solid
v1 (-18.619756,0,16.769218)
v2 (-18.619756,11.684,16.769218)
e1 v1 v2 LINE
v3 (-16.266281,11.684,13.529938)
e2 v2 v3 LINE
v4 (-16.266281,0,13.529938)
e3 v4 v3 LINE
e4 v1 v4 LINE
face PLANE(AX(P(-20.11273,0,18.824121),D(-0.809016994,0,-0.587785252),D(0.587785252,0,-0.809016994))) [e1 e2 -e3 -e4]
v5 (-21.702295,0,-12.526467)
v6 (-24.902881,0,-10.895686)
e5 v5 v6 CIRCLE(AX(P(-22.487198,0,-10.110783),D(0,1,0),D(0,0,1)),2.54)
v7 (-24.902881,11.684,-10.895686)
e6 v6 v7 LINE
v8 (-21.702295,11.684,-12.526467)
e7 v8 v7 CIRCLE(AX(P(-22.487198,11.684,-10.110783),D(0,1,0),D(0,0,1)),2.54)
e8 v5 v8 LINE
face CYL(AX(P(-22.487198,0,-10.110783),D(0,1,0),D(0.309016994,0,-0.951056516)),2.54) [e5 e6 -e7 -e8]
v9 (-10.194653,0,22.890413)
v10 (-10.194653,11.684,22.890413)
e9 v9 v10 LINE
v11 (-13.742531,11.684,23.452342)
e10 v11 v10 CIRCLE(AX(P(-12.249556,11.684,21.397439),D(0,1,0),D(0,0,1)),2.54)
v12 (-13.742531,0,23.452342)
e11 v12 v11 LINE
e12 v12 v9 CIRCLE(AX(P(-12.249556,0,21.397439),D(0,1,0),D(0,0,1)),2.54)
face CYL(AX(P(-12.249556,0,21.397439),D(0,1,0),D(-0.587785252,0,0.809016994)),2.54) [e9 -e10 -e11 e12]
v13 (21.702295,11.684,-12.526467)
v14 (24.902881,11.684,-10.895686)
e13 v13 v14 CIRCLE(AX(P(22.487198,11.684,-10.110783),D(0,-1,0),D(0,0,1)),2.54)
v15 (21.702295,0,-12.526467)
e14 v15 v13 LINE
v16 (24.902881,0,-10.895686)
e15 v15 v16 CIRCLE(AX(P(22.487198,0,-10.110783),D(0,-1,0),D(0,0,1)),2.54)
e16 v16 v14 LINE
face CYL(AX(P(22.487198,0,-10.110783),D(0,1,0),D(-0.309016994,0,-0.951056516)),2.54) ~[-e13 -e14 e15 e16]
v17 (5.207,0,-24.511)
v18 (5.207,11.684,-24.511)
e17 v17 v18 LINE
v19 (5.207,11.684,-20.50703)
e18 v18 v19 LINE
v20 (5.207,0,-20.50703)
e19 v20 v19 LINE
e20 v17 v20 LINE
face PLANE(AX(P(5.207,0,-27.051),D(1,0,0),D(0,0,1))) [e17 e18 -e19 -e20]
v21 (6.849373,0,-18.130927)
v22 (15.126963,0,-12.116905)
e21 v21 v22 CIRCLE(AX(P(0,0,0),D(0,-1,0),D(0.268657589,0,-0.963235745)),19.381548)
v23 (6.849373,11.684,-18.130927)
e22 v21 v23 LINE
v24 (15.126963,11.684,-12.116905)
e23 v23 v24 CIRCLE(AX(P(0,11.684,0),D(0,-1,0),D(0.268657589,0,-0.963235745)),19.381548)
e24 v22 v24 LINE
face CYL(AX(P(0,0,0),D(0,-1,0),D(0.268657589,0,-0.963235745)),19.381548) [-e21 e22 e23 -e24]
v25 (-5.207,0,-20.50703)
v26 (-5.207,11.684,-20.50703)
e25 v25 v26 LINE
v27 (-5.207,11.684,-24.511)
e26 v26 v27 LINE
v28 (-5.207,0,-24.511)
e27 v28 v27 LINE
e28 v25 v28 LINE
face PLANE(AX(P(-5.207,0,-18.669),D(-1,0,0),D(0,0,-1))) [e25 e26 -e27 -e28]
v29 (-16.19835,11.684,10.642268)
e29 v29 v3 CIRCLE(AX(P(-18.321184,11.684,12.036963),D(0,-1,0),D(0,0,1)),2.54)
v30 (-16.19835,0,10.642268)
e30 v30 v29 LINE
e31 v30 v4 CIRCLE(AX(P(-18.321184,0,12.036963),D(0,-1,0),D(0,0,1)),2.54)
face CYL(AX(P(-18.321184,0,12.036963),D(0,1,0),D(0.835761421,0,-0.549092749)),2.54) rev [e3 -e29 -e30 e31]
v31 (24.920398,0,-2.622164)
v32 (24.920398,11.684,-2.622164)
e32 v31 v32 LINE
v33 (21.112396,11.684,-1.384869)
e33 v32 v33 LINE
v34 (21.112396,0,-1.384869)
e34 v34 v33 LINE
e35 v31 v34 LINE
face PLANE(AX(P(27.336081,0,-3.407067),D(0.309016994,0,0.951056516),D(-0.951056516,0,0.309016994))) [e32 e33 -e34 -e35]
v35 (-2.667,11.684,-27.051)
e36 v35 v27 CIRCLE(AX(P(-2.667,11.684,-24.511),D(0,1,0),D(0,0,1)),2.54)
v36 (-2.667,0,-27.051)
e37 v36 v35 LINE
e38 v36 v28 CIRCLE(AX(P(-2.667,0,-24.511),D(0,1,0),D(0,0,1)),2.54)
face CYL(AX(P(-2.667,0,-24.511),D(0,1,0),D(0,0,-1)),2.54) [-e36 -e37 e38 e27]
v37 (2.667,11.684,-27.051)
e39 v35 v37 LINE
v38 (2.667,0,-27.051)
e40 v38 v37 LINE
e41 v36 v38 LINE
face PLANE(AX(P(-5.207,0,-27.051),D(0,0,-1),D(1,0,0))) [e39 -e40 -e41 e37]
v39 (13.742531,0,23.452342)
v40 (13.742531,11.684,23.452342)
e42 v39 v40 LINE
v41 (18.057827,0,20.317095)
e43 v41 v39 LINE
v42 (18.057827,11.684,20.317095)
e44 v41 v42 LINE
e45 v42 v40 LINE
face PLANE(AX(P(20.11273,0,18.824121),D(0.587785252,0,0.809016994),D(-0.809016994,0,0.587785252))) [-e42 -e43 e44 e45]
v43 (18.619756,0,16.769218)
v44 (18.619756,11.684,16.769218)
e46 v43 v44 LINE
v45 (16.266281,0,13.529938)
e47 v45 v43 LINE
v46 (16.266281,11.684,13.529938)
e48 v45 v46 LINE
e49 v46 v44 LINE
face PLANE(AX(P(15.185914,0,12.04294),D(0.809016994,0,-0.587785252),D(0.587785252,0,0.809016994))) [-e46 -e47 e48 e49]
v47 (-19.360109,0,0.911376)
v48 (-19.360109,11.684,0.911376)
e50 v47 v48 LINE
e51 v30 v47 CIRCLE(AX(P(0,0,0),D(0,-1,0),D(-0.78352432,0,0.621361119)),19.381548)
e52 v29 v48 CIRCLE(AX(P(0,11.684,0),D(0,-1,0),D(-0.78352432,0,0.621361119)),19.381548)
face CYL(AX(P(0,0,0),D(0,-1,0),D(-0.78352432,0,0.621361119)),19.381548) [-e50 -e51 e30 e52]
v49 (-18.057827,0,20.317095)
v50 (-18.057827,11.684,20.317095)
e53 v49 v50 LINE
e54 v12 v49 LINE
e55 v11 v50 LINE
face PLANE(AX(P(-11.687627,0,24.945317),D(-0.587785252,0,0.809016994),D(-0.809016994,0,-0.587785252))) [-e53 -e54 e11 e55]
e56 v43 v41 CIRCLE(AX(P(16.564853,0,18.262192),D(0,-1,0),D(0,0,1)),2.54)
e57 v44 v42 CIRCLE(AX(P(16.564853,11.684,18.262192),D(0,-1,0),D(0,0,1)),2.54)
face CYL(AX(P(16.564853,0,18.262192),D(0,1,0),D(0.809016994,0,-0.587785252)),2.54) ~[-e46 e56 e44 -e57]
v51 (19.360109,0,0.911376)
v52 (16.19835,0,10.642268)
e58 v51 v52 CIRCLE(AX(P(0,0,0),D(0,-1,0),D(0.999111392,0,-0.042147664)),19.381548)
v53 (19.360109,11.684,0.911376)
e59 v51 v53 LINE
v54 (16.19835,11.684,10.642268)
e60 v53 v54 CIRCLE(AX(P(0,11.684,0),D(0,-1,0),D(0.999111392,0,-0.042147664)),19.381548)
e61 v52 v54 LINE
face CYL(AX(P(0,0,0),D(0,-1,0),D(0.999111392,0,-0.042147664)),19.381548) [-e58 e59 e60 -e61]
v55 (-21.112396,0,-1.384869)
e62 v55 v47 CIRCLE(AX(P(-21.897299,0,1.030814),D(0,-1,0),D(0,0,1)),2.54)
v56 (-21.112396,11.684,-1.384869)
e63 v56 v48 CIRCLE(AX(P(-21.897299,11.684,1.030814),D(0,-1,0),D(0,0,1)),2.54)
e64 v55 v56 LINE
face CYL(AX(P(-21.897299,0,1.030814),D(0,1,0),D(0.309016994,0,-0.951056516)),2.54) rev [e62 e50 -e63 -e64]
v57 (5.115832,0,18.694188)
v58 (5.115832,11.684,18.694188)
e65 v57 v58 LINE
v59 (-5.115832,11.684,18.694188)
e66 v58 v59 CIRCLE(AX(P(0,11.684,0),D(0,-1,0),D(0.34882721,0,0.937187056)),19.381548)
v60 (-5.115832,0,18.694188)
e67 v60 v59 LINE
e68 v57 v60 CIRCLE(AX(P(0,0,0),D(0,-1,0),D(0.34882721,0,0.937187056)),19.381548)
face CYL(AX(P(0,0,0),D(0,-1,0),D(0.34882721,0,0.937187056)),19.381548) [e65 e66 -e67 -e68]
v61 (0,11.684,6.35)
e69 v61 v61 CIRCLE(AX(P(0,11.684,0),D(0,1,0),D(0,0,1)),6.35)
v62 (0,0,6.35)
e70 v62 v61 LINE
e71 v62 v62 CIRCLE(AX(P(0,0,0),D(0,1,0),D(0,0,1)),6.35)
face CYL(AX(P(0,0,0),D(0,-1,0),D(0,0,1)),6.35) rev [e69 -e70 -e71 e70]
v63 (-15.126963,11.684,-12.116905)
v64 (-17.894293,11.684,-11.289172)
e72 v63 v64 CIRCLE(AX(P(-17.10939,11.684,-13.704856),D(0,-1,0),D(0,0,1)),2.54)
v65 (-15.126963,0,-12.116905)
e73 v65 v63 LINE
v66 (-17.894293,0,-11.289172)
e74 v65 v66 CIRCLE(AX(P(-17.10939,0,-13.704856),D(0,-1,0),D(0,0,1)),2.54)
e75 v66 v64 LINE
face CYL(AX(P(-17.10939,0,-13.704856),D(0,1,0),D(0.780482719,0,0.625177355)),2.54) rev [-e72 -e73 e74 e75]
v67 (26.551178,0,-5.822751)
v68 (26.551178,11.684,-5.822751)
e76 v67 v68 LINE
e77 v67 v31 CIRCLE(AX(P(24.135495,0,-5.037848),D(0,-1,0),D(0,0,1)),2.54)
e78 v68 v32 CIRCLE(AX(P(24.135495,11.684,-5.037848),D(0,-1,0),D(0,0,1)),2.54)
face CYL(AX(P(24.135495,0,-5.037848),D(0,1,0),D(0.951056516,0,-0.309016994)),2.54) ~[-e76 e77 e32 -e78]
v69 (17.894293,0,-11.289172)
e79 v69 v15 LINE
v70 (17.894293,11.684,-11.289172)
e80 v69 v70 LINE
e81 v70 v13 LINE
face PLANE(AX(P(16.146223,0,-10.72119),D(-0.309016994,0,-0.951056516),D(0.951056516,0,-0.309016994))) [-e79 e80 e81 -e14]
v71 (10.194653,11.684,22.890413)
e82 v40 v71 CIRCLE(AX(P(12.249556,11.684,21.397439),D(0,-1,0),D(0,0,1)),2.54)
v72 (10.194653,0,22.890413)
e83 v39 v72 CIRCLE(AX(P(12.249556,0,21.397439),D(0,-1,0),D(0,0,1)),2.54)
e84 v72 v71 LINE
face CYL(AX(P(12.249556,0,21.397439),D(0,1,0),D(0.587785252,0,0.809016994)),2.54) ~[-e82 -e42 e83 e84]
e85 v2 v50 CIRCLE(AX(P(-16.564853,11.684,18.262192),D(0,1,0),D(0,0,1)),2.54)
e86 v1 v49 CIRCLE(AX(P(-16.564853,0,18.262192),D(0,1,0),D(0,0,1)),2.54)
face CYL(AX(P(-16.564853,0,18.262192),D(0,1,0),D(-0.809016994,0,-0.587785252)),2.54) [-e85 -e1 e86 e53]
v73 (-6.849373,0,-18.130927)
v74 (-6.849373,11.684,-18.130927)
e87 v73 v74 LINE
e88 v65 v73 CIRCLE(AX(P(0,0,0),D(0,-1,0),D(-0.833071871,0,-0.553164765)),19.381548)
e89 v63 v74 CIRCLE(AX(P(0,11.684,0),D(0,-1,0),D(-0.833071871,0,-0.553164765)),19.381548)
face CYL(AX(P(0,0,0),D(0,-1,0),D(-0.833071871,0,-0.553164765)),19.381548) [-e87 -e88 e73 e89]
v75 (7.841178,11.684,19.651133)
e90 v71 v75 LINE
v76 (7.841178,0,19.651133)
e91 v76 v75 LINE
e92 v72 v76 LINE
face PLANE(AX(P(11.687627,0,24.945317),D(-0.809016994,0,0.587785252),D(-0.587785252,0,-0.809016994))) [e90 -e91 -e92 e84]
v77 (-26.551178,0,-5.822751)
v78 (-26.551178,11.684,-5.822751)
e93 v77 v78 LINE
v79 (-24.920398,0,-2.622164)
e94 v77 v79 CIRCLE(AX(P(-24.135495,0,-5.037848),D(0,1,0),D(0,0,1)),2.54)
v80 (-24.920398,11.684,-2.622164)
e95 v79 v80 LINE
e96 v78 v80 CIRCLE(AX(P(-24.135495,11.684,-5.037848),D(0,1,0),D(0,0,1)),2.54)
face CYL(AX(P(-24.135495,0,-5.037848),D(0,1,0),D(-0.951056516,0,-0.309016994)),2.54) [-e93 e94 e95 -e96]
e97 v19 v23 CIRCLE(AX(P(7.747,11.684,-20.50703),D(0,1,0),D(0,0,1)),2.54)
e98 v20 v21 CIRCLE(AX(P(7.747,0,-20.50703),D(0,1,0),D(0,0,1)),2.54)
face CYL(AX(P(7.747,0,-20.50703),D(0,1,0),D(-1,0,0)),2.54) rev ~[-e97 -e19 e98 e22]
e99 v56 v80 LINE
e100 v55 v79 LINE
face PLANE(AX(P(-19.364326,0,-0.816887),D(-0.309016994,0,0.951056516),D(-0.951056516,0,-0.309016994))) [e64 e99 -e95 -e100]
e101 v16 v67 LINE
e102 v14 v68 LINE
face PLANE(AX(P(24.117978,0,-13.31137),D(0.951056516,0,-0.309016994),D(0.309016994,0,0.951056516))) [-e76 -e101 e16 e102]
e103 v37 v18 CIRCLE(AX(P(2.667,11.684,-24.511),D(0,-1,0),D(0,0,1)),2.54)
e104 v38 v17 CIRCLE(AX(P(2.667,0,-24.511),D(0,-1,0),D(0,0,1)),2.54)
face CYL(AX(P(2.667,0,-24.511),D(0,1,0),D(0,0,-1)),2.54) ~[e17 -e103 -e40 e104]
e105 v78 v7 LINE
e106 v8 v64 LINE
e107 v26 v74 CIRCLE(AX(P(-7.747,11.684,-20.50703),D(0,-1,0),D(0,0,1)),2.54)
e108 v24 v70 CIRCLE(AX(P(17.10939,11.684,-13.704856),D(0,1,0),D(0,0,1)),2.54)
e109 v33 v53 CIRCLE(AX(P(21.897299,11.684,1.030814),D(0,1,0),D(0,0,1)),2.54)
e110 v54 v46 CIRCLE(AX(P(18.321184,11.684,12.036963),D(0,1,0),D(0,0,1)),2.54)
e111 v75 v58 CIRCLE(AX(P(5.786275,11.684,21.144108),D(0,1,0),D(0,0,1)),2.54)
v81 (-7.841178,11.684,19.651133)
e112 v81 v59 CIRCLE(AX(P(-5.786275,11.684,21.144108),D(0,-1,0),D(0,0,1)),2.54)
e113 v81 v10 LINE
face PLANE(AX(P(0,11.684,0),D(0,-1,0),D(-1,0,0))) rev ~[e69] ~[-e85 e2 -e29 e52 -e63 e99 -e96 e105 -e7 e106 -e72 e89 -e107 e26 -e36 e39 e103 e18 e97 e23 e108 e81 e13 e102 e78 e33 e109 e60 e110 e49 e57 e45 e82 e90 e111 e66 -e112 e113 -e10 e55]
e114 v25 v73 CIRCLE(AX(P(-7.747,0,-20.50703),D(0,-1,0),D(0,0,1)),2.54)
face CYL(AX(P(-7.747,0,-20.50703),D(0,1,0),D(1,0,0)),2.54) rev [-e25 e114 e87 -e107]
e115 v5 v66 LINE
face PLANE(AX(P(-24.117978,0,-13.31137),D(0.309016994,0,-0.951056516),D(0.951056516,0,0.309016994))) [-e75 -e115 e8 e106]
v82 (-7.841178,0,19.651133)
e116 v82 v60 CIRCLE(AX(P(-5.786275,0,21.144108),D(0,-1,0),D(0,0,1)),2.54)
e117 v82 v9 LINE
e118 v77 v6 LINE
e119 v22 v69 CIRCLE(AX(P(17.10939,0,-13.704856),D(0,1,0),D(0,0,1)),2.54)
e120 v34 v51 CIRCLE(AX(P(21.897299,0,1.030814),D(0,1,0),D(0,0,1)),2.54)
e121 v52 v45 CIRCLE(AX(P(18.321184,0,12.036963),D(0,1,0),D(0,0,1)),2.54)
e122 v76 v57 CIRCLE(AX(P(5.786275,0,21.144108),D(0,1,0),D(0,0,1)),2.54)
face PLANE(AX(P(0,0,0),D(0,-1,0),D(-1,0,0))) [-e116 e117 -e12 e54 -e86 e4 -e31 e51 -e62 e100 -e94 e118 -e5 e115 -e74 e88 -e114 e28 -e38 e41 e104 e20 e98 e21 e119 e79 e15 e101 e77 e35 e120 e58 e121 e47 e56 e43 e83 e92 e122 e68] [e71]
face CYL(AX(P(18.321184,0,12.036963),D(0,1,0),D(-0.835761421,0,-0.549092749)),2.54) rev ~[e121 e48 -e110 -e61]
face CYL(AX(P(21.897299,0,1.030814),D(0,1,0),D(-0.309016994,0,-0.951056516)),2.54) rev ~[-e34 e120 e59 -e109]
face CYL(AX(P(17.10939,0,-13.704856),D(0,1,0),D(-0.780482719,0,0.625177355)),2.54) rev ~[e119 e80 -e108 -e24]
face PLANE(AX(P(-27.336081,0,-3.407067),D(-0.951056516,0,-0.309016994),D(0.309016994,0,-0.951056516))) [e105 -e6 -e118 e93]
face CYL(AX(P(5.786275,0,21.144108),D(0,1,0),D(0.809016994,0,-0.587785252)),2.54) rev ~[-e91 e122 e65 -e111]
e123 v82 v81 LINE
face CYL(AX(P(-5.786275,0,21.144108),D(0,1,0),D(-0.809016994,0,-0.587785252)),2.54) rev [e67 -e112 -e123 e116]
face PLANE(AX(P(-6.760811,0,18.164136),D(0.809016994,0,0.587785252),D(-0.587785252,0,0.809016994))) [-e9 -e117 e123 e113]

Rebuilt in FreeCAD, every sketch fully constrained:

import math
import FreeCAD as App
import Part
import Sketcher
from FreeCAD import Vector
Q = App.Units.Quantity


def edges_at(feature, points):
    """Names of the edges that pass closest to the given points."""
    edges = feature.Shape.Edges
    near = lambda p: min(range(len(edges)), key=lambda i: edges[i].distToShape(Part.Vertex(*p))[0])
    return sorted({f"Edge{near(p) + 1}" for p in points})

doc = App.newDocument("Part")
params = doc.addObject("Spreadsheet::Sheet", "Params")
for row, (alias, value) in enumerate([
    ("sketch1_diameter", "0.5 in"),
    ("sketch1_width", "0.41 in"),
    ("sketch1_height", "0.33 in"),
    ("sketch1_length", "0.33 in"),
    ("sketch1_length2", "0.41 in"),
    ("pad1_length", "0.46 in"),
    ("fillet_radius", "0.1 in"),
], start=1):
    params.set(f"A{row}", alias)
    params.set(f"B{row}", "=" + value)
    params.setAlias(f"B{row}", alias)

body = doc.addObject("PartDesign::Body", "Body")

# Sketch on XZ plane
sketch1 = body.newObject("Sketcher::SketchObject", "Sketch")
sketch1.AttachmentSupport = (doc.getObject("XZ_Plane"), [""])
sketch1.MapMode = "FlatFace"
sketch1.addGeometry([
    Part.LineSegment(Vector(5, -27, 0), Vector(-5, -27, 0)),  # 0
    Part.LineSegment(Vector(-5, -27, 0), Vector(-5, -19, 0)),  # 1
    Part.ArcOfCircle(Part.Circle(Vector(0, 0, 0), Vector(0, 0, 1), 19), math.radians(-146), math.radians(-106)),  # 2
    Part.LineSegment(Vector(-16, -11, 0), Vector(-24, -13, 0)),  # 3
    Part.LineSegment(Vector(-24, -13, 0), Vector(-27, -3, 0)),  # 4
    Part.LineSegment(Vector(-27, -3, 0), Vector(-19, -1, 0)),  # 5
    Part.ArcOfCircle(Part.Circle(Vector(0, 0, 0), Vector(0, 0, 1), 19), math.radians(142), math.radians(182)),  # 6
    Part.LineSegment(Vector(-15, 12, 0), Vector(-20, 19, 0)),  # 7
    Part.LineSegment(Vector(-20, 19, 0), Vector(-12, 25, 0)),  # 8
    Part.LineSegment(Vector(-12, 25, 0), Vector(-7, 18, 0)),  # 9
    Part.ArcOfCircle(Part.Circle(Vector(0, 0, 0), Vector(0, 0, 1), 19), math.radians(70), math.radians(110)),  # 10
    Part.LineSegment(Vector(7, 18, 0), Vector(12, 25, 0)),  # 11
    Part.LineSegment(Vector(12, 25, 0), Vector(20, 19, 0)),  # 12
    Part.LineSegment(Vector(20, 19, 0), Vector(15, 12, 0)),  # 13
    Part.ArcOfCircle(Part.Circle(Vector(0, 0, 0), Vector(0, 0, 1), 19), math.radians(-2), math.radians(38)),  # 14
    Part.LineSegment(Vector(19, -1, 0), Vector(27, -3, 0)),  # 15
    Part.LineSegment(Vector(27, -3, 0), Vector(24, -13, 0)),  # 16
    Part.LineSegment(Vector(24, -13, 0), Vector(16, -11, 0)),  # 17
    Part.ArcOfCircle(Part.Circle(Vector(0, 0, 0), Vector(0, 0, 1), 19), math.radians(-74), math.radians(-34)),  # 18
    Part.LineSegment(Vector(5, -19, 0), Vector(5, -27, 0)),  # 19
    Part.Circle(Vector(0, 0, 0), Vector(0, 0, 1), 6),  # 20
], False)
sketch1.addConstraint([
    Sketcher.Constraint("Coincident", 0, 2, 1, 1),
    Sketcher.Constraint("Coincident", 1, 2, 2, 2),
    Sketcher.Constraint("Coincident", 2, 1, 3, 1),
    Sketcher.Constraint("Coincident", 3, 2, 4, 1),
    Sketcher.Constraint("Coincident", 4, 2, 5, 1),
    Sketcher.Constraint("Coincident", 5, 2, 6, 2),
    Sketcher.Constraint("Coincident", 6, 1, 7, 1),
    Sketcher.Constraint("Coincident", 7, 2, 8, 1),
    Sketcher.Constraint("Coincident", 8, 2, 9, 1),
    Sketcher.Constraint("Coincident", 9, 2, 10, 2),
    Sketcher.Constraint("Coincident", 10, 1, 11, 1),
    Sketcher.Constraint("Coincident", 11, 2, 12, 1),
    Sketcher.Constraint("Coincident", 12, 2, 13, 1),
    Sketcher.Constraint("Coincident", 13, 2, 14, 2),
    Sketcher.Constraint("Coincident", 14, 1, 15, 1),
    Sketcher.Constraint("Coincident", 15, 2, 16, 1),
    Sketcher.Constraint("Coincident", 16, 2, 17, 1),
    Sketcher.Constraint("Coincident", 17, 2, 18, 2),
    Sketcher.Constraint("Coincident", 18, 1, 19, 1),
    Sketcher.Constraint("Coincident", 19, 2, 0, 1),
    Sketcher.Constraint("Horizontal", 0),
    Sketcher.Constraint("Vertical", 1),
    Sketcher.Constraint("Vertical", 19),
    Sketcher.Constraint("Coincident", 2, 3, -1, 1),
    Sketcher.Constraint("Coincident", 6, 3, -1, 1),
    Sketcher.Constraint("Coincident", 10, 3, -1, 1),
    Sketcher.Constraint("Coincident", 14, 3, -1, 1),
    Sketcher.Constraint("Coincident", 18, 3, -1, 1),
    Sketcher.Constraint("Coincident", 20, 3, -1, 1),
    Sketcher.Constraint("Equal", 2, 6),
    Sketcher.Constraint("Equal", 6, 10),
    Sketcher.Constraint("Equal", 10, 14),
    Sketcher.Constraint("Equal", 14, 18),
    Sketcher.Constraint("Symmetric", 8, 2, 11, 2, -2),
    Sketcher.Constraint("Symmetric", 7, 2, 12, 2, -2),
    Sketcher.Constraint("Symmetric", 4, 2, 15, 2, -2),
    Sketcher.Constraint("Symmetric", 3, 2, 16, 2, -2),
    Sketcher.Constraint("Perpendicular", 3, 4),
    Sketcher.Constraint("Perpendicular", 4, 5),
    Sketcher.Constraint("Perpendicular", 7, 8),
    Sketcher.Constraint("Perpendicular", 8, 9),
    Sketcher.Constraint("Perpendicular", 11, 12),
    Sketcher.Constraint("Perpendicular", 12, 13),
    Sketcher.Constraint("Perpendicular", 15, 16),
    Sketcher.Constraint("Perpendicular", 16, 17),
    Sketcher.Constraint("Horizontal", 1, 2, 18, 1),
    Sketcher.Constraint("Equal", 3, 5),
    Sketcher.Constraint("Equal", 5, 7),
    Sketcher.Constraint("Equal", 4, 8),
    Sketcher.Constraint("Equal", 7, 9),
    Sketcher.Constraint("Diameter", 20, Q("0.5 in")),
    Sketcher.Constraint("Angle", 3, Q("-162 deg")),
    Sketcher.Constraint("Angle", 7, Q("126 deg")),
    Sketcher.Constraint("DistanceX", 0, 2, 0, 1, Q("0.41 in")),
    Sketcher.Constraint("DistanceY", 1, 1, 1, 2, Q("0.33 in")),
    Sketcher.Constraint("Distance", 3, Q("0.33 in")),
    Sketcher.Constraint("Distance", 4, Q("0.41 in")),
    Sketcher.Constraint("DistanceY", 0, 2, -1, 1, Q("1.065 in")),
])
sketch1.setExpression("Constraints[50]", "Params.sketch1_diameter")
sketch1.setExpression("Constraints[53]", "Params.sketch1_width")
sketch1.setExpression("Constraints[54]", "Params.sketch1_height")
sketch1.setExpression("Constraints[55]", "Params.sketch1_length")
sketch1.setExpression("Constraints[56]", "Params.sketch1_length2")
pad1 = body.newObject("PartDesign::Pad", "Pad")
pad1.Profile = sketch1
pad1.setExpression("Length", "Params.pad1_length")
pad1.Reversed = True
doc.recompute()

fillet = body.newObject("PartDesign::Fillet", "Fillet")
fillet.Base = (pad1, edges_at(pad1, [
    (-5.207, 5.842, -27.051),
    (5.207, 5.842, -27.051),
    (5.207, 5.842, -18.669),
    (16.146, 5.842, -10.721),
    (24.118, 5.842, -13.311),
    (27.336, 5.842, -3.407),
    (19.364, 5.842, -0.817),
    (15.186, 5.842, 12.043),
    (20.113, 5.842, 18.824),
    (11.688, 5.842, 24.945),
    (6.761, 5.842, 18.164),
    (-6.761, 5.842, 18.164),
    (-11.688, 5.842, 24.945),
    (-20.113, 5.842, 18.824),
    (-15.186, 5.842, 12.043),
    (-19.364, 5.842, -0.817),
    (-27.336, 5.842, -3.407),
    (-24.118, 5.842, -13.311),
    (-16.146, 5.842, -10.721),
    (-5.207, 5.842, -18.669),
]))
fillet.setExpression("Radius", "Params.fillet_radius")

doc.recompute()
